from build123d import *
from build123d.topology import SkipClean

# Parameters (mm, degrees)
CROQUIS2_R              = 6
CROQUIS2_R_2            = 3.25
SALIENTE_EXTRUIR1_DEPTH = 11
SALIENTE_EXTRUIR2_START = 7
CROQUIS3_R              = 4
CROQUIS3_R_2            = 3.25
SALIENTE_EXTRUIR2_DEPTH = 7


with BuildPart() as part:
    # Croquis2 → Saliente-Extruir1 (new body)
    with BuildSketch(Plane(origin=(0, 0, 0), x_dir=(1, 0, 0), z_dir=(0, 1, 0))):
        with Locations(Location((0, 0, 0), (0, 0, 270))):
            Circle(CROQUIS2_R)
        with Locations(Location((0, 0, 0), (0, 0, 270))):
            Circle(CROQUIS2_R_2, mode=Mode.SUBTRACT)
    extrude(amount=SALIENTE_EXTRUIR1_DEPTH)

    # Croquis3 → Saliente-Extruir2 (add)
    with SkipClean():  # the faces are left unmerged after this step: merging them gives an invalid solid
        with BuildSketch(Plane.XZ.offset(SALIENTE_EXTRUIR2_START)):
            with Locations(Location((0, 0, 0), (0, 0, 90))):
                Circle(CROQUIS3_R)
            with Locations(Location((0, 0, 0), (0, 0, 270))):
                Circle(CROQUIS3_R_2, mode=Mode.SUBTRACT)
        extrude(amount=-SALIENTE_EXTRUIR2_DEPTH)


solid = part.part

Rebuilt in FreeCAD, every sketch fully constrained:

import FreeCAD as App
import Part
import Sketcher

V = App.Vector
Q = App.Units.Quantity

doc = App.newDocument("Part")
body = doc.addObject("PartDesign::Body", "Body")

# Sketch on XZ plane
sketch1 = body.newObject("Sketcher::SketchObject", "Sketch")
sketch1.AttachmentSupport = (doc.getObject("XZ_Plane"), [""])
sketch1.MapMode = "FlatFace"
sketch1.addGeometry([
    Part.Circle(V(0, 0, 0), V(0, 0, 1), 6),
    Part.Circle(V(0, 0, 0), V(0, 0, 1), 3.25),
], False)
sketch1.addConstraint([
    Sketcher.Constraint("Coincident", 0, 3, -1, 1),
    Sketcher.Constraint("Coincident", 1, 3, -1, 1),
    Sketcher.Constraint("Diameter", 0, Q("12 mm")),
    Sketcher.Constraint("Diameter", 1, Q("6.5 mm")),
])
pad1 = body.newObject("PartDesign::Pad", "Pad")
pad1.Profile = sketch1
pad1.Length = 11
pad1.Reversed = True

# Sketch on XZ plane
sketch2 = body.newObject("Sketcher::SketchObject", "Sketch001")
sketch2.AttachmentSupport = (doc.getObject("XZ_Plane"), [""])
sketch2.MapMode = "FlatFace"
sketch2.AttachmentOffset = App.Placement(V(0, 0, 7), App.Rotation())
sketch2.addGeometry([
    Part.Circle(V(0, 0, 0), V(0, 0, 1), 4),
    Part.Circle(V(0, 0, 0), V(0, 0, 1), 3.25),
], False)
sketch2.addConstraint([
    Sketcher.Constraint("Coincident", 0, 3, -1, 1),
    Sketcher.Constraint("Coincident", 1, 3, -1, 1),
    Sketcher.Constraint("Diameter", 0, Q("8 mm")),
    Sketcher.Constraint("Diameter", 1, Q("6.5 mm")),
])
pad2 = body.newObject("PartDesign::Pad", "Pad001")
pad2.Profile = sketch2
pad2.Length = 7
pad2.Reversed = True

doc.recompute()
